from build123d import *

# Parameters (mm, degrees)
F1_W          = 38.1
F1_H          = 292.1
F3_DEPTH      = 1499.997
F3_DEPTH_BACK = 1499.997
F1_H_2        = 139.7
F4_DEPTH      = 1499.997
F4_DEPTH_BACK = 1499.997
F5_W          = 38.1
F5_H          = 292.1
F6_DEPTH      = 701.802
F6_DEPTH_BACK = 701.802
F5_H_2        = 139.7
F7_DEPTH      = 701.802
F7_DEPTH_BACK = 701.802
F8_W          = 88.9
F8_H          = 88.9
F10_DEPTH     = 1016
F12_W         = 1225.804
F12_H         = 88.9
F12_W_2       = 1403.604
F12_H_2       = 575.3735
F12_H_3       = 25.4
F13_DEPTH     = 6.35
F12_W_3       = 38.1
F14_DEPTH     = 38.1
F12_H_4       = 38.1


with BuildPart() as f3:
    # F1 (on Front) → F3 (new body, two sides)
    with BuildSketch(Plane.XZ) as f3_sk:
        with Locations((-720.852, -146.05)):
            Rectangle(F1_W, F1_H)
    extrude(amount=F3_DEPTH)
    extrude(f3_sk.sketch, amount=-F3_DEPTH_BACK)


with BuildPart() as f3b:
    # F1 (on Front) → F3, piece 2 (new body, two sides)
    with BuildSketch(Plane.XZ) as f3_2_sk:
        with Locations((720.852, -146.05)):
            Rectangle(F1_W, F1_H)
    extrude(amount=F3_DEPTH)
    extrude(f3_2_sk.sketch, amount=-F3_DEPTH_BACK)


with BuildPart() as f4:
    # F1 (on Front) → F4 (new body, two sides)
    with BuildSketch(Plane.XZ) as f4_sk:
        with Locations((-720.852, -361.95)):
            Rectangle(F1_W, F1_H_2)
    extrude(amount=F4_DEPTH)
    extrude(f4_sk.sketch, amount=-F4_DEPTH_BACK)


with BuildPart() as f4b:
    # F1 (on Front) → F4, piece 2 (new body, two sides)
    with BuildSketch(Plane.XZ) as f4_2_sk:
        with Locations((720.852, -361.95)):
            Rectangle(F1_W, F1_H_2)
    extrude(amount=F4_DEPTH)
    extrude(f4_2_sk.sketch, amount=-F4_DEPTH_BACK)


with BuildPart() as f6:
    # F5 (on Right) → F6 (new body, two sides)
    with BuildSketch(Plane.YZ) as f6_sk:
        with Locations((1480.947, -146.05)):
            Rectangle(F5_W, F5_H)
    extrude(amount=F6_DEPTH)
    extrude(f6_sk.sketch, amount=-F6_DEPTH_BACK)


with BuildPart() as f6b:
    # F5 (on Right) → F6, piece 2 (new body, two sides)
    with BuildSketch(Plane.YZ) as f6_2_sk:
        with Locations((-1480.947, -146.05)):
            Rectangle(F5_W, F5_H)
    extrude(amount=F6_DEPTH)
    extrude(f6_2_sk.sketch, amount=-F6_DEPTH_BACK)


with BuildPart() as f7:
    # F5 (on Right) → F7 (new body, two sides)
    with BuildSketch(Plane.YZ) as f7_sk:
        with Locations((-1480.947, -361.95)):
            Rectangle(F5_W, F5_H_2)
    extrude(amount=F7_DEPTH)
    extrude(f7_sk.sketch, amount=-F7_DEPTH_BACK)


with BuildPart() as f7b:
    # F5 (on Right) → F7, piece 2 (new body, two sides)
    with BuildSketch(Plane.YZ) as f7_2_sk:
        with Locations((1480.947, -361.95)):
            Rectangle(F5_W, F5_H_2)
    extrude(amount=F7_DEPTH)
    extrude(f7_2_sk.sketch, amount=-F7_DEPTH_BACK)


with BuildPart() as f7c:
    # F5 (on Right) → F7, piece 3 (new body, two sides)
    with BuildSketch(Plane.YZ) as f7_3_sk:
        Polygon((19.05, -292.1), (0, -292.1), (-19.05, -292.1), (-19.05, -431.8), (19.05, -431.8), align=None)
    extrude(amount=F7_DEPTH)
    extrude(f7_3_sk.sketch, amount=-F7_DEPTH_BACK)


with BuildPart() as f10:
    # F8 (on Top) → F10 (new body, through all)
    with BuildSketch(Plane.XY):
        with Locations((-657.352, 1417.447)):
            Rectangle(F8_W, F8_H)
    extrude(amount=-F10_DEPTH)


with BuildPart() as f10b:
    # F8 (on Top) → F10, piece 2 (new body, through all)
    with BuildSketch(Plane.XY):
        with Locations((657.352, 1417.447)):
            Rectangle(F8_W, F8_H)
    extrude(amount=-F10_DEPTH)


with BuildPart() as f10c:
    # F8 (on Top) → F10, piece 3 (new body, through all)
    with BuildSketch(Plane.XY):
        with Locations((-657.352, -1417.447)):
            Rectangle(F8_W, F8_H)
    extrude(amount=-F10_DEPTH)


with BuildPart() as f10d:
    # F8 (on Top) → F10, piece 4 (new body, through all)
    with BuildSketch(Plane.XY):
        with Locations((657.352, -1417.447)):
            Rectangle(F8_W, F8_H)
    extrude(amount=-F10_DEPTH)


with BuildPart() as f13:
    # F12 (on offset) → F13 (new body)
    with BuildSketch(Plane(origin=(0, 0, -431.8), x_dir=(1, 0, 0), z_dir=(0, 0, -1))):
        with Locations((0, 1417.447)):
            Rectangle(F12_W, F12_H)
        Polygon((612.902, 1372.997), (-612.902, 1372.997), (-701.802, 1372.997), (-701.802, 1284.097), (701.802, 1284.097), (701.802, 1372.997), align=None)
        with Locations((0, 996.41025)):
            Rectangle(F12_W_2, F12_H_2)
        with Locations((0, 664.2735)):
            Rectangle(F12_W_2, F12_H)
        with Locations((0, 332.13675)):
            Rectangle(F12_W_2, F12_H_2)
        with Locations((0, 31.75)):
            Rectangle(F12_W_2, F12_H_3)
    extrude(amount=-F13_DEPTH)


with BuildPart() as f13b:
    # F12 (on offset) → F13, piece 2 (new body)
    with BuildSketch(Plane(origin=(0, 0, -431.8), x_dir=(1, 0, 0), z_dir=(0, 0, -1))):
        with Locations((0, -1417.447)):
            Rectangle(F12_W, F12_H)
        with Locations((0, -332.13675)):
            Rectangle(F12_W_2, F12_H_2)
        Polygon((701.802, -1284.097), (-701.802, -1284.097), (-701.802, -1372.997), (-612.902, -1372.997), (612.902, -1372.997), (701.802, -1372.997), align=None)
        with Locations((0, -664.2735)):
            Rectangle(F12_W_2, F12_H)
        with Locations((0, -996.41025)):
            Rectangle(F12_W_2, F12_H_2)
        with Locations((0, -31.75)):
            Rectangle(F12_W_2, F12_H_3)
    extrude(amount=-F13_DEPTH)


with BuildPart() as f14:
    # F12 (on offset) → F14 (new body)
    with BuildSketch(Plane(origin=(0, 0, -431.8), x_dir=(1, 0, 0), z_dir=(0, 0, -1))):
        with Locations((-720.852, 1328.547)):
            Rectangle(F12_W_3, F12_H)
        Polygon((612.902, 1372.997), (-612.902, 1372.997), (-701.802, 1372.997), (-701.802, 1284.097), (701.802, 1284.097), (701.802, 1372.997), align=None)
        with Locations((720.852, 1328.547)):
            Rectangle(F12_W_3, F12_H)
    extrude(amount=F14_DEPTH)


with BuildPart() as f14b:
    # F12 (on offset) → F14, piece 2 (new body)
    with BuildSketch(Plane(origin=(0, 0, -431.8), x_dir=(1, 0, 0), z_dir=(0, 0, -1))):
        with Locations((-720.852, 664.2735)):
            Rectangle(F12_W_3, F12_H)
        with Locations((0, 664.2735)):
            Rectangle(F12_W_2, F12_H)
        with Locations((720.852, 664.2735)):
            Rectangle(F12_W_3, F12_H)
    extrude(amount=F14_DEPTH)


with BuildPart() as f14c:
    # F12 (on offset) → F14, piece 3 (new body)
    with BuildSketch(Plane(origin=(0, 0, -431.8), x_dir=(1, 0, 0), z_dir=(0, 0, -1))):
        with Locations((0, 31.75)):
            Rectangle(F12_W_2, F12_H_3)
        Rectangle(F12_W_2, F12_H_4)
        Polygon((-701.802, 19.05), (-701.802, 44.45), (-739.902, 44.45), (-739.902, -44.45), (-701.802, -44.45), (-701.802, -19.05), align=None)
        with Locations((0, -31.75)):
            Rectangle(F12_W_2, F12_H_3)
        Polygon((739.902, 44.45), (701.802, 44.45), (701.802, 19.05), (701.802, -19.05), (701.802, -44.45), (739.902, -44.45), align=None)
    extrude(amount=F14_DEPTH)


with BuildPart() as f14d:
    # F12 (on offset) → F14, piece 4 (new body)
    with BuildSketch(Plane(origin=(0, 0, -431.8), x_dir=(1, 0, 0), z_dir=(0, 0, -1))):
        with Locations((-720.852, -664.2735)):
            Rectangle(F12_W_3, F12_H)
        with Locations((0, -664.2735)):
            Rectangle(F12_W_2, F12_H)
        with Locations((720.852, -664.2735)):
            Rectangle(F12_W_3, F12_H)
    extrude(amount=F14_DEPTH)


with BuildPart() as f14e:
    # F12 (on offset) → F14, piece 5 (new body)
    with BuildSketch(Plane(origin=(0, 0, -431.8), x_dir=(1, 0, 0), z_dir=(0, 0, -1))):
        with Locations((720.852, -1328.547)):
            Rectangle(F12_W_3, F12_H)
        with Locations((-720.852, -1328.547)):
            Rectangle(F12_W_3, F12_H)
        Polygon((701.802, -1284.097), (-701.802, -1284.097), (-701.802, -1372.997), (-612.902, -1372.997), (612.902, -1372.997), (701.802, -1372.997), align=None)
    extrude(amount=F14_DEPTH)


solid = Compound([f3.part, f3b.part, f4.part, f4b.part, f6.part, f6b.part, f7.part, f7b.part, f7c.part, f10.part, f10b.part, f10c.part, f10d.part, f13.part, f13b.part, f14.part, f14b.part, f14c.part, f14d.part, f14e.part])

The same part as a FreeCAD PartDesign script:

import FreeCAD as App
import Part
import Sketcher

V = App.Vector
Q = App.Units.Quantity

doc = App.newDocument("Part")
body = doc.addObject("PartDesign::Body", "Body")

sketch1 = body.newObject("Sketcher::SketchObject", "Sketch")
sketch1.AttachmentSupport = (doc.getObject("XZ_Plane"), [""])
sketch1.MapMode = "FlatFace"
sketch1.addGeometry([
    Part.LineSegment(V(-740, 0, 0), V(-740, -292, 0)),
    Part.LineSegment(V(-740, -292, 0), V(-702, -292, 0)),
    Part.LineSegment(V(-702, -292, 0), V(-702, 0, 0)),
    Part.LineSegment(V(-702, 0, 0), V(-740, 0, 0)),
], False)
sketch1.addConstraint([
    Sketcher.Constraint("Coincident", 0, 2, 1, 1),
    Sketcher.Constraint("Coincident", 1, 2, 2, 1),
    Sketcher.Constraint("Coincident", 2, 2, 3, 1),
    Sketcher.Constraint("Coincident", 3, 2, 0, 1),
    Sketcher.Constraint("Vertical", 0),
    Sketcher.Constraint("Horizontal", 1),
    Sketcher.Constraint("Vertical", 2),
    Sketcher.Constraint("Horizontal", 3),
    Sketcher.Constraint("PointOnObject", 2, 2, -1),
    Sketcher.Constraint("DistanceX", 1, 1, 1, 2, Q("1.5 in")),
    Sketcher.Constraint("DistanceY", 0, 2, 0, 1, Q("11.5 in")),
    Sketcher.Constraint("DistanceX", 0, 2, -1, 1, Q("29.13 in")),
])
pad1 = body.newObject("PartDesign::Pad", "Pad")
pad1.Profile = sketch1
pad1.Type = "TwoLengths"
pad1.Length = Q("59.055 in")
pad1.Length2 = Q("59.055 in")
body2 = doc.addObject("PartDesign::Body", "Body001")

sketch2 = body2.newObject("Sketcher::SketchObject", "Sketch001")
sketch2.AttachmentSupport = (doc.getObject("XZ_Plane001"), [""])
sketch2.MapMode = "FlatFace"
sketch2.addGeometry([
    Part.LineSegment(V(702, 0, 0), V(702, -292, 0)),
    Part.LineSegment(V(702, -292, 0), V(740, -292, 0)),
    Part.LineSegment(V(740, -292, 0), V(740, 0, 0)),
    Part.LineSegment(V(740, 0, 0), V(702, 0, 0)),
], False)
sketch2.addConstraint([
    Sketcher.Constraint("Coincident", 0, 2, 1, 1),
    Sketcher.Constraint("Coincident", 1, 2, 2, 1),
    Sketcher.Constraint("Coincident", 2, 2, 3, 1),
    Sketcher.Constraint("Coincident", 3, 2, 0, 1),
    Sketcher.Constraint("Vertical", 0),
    Sketcher.Constraint("Horizontal", 1),
    Sketcher.Constraint("Vertical", 2),
    Sketcher.Constraint("Horizontal", 3),
    Sketcher.Constraint("PointOnObject", 2, 2, -1),
    Sketcher.Constraint("DistanceX", 1, 1, 1, 2, Q("1.5 in")),
    Sketcher.Constraint("DistanceY", 0, 2, 0, 1, Q("11.5 in")),
    Sketcher.Constraint("DistanceX", -1, 1, 0, 2, Q("27.63 in")),
])
pad2 = body2.newObject("PartDesign::Pad", "Pad001")
pad2.Profile = sketch2
pad2.Type = "TwoLengths"
pad2.Length = Q("59.055 in")
pad2.Length2 = Q("59.055 in")
body3 = doc.addObject("PartDesign::Body", "Body002")

sketch3 = body3.newObject("Sketcher::SketchObject", "Sketch002")
sketch3.AttachmentSupport = (doc.getObject("XZ_Plane002"), [""])
sketch3.MapMode = "FlatFace"
sketch3.addGeometry([
    Part.LineSegment(V(-740, -292, 0), V(-740, -432, 0)),
    Part.LineSegment(V(-740, -432, 0), V(-702, -432, 0)),
    Part.LineSegment(V(-702, -432, 0), V(-702, -292, 0)),
    Part.LineSegment(V(-702, -292, 0), V(-740, -292, 0)),
], False)
sketch3.addConstraint([
    Sketcher.Constraint("Coincident", 0, 2, 1, 1),
    Sketcher.Constraint("Coincident", 1, 2, 2, 1),
    Sketcher.Constraint("Coincident", 2, 2, 3, 1),
    Sketcher.Constraint("Coincident", 3, 2, 0, 1),
    Sketcher.Constraint("Vertical", 0),
    Sketcher.Constraint("Horizontal", 1),
    Sketcher.Constraint("Vertical", 2),
    Sketcher.Constraint("Horizontal", 3),
    Sketcher.Constraint("DistanceX", 1, 1, 1, 2, Q("1.5 in")),
    Sketcher.Constraint("DistanceY", 0, 2, 0, 1, Q("5.5 in")),
    Sketcher.Constraint("DistanceY", 0, 2, -1, 1, Q("17 in")),
    Sketcher.Constraint("DistanceX", 0, 2, -1, 1, Q("29.13 in")),
])
pad3 = body3.newObject("PartDesign::Pad", "Pad002")
pad3.Profile = sketch3
pad3.Type = "TwoLengths"
pad3.Length = Q("59.055 in")
pad3.Length2 = Q("59.055 in")
body4 = doc.addObject("PartDesign::Body", "Body003")

sketch4 = body4.newObject("Sketcher::SketchObject", "Sketch003")
sketch4.AttachmentSupport = (doc.getObject("XZ_Plane003"), [""])
sketch4.MapMode = "FlatFace"
sketch4.addGeometry([
    Part.LineSegment(V(702, -292, 0), V(702, -432, 0)),
    Part.LineSegment(V(702, -432, 0), V(740, -432, 0)),
    Part.LineSegment(V(740, -432, 0), V(740, -292, 0)),
    Part.LineSegment(V(740, -292, 0), V(702, -292, 0)),
], False)
sketch4.addConstraint([
    Sketcher.Constraint("Coincident", 0, 2, 1, 1),
    Sketcher.Constraint("Coincident", 1, 2, 2, 1),
    Sketcher.Constraint("Coincident", 2, 2, 3, 1),
    Sketcher.Constraint("Coincident", 3, 2, 0, 1),
    Sketcher.Constraint("Vertical", 0),
    Sketcher.Constraint("Horizontal", 1),
    Sketcher.Constraint("Vertical", 2),
    Sketcher.Constraint("Horizontal", 3),
    Sketcher.Constraint("DistanceX", 1, 1, 1, 2, Q("1.5 in")),
    Sketcher.Constraint("DistanceY", 0, 2, 0, 1, Q("5.5 in")),
    Sketcher.Constraint("DistanceY", 0, 2, -1, 1, Q("17 in")),
    Sketcher.Constraint("DistanceX", -1, 1, 0, 2, Q("27.63 in")),
])
pad4 = body4.newObject("PartDesign::Pad", "Pad003")
pad4.Profile = sketch4
pad4.Type = "TwoLengths"
pad4.Length = Q("59.055 in")
pad4.Length2 = Q("59.055 in")
body5 = doc.addObject("PartDesign::Body", "Body004")

sketch5 = body5.newObject("Sketcher::SketchObject", "Sketch004")
sketch5.AttachmentSupport = (doc.getObject("YZ_Plane004"), [""])
sketch5.MapMode = "FlatFace"
sketch5.addGeometry([
    Part.LineSegment(V(1462, 0, 0), V(1462, -292, 0)),
    Part.LineSegment(V(1462, -292, 0), V(1500, -292, 0)),
    Part.LineSegment(V(1500, -292, 0), V(1500, 0, 0)),
    Part.LineSegment(V(1500, 0, 0), V(1462, 0, 0)),
], False)
sketch5.addConstraint([
    Sketcher.Constraint("Coincident", 0, 2, 1, 1),
    Sketcher.Constraint("Coincident", 1, 2, 2, 1),
    Sketcher.Constraint("Coincident", 2, 2, 3, 1),
    Sketcher.Constraint("Coincident", 3, 2, 0, 1),
    Sketcher.Constraint("Vertical", 0),
    Sketcher.Constraint("Horizontal", 1),
    Sketcher.Constraint("Vertical", 2),
    Sketcher.Constraint("Horizontal", 3),
    Sketcher.Constraint("PointOnObject", 2, 2, -1),
    Sketcher.Constraint("DistanceX", 1, 1, 1, 2, Q("1.5 in")),
    Sketcher.Constraint("DistanceY", 0, 2, 0, 1, Q("11.5 in")),
    Sketcher.Constraint("DistanceX", -1, 1, 0, 2, Q("57.555 in")),
])
pad5 = body5.newObject("PartDesign::Pad", "Pad004")
pad5.Profile = sketch5
pad5.Type = "TwoLengths"
pad5.Length = Q("27.63 in")
pad5.Length2 = Q("27.63 in")
body6 = doc.addObject("PartDesign::Body", "Body005")

sketch6 = body6.newObject("Sketcher::SketchObject", "Sketch005")
sketch6.AttachmentSupport = (doc.getObject("YZ_Plane005"), [""])
sketch6.MapMode = "FlatFace"
sketch6.addGeometry([
    Part.LineSegment(V(-1500, 0, 0), V(-1500, -292, 0)),
    Part.LineSegment(V(-1500, -292, 0), V(-1462, -292, 0)),
    Part.LineSegment(V(-1462, -292, 0), V(-1462, 0, 0)),
    Part.LineSegment(V(-1462, 0, 0), V(-1500, 0, 0)),
], False)
sketch6.addConstraint([
    Sketcher.Constraint("Coincident", 0, 2, 1, 1),
    Sketcher.Constraint("Coincident", 1, 2, 2, 1),
    Sketcher.Constraint("Coincident", 2, 2, 3, 1),
    Sketcher.Constraint("Coincident", 3, 2, 0, 1),
    Sketcher.Constraint("Vertical", 0),
    Sketcher.Constraint("Horizontal", 1),
    Sketcher.Constraint("Vertical", 2),
    Sketcher.Constraint("Horizontal", 3),
    Sketcher.Constraint("PointOnObject", 2, 2, -1),
    Sketcher.Constraint("DistanceX", 1, 1, 1, 2, Q("1.5 in")),
    Sketcher.Constraint("DistanceY", 0, 2, 0, 1, Q("11.5 in")),
    Sketcher.Constraint("DistanceX", 0, 2, -1, 1, Q("59.055 in")),
])
pad6 = body6.newObject("PartDesign::Pad", "Pad005")
pad6.Profile = sketch6
pad6.Type = "TwoLengths"
pad6.Length = Q("27.63 in")
pad6.Length2 = Q("27.63 in")
body7 = doc.addObject("PartDesign::Body", "Body006")

sketch7 = body7.newObject("Sketcher::SketchObject", "Sketch006")
sketch7.AttachmentSupport = (doc.getObject("YZ_Plane006"), [""])
sketch7.MapMode = "FlatFace"
sketch7.addGeometry([
    Part.LineSegment(V(-1500, -292, 0), V(-1500, -432, 0)),
    Part.LineSegment(V(-1500, -432, 0), V(-1462, -432, 0)),
    Part.LineSegment(V(-1462, -432, 0), V(-1462, -292, 0)),
    Part.LineSegment(V(-1462, -292, 0), V(-1500, -292, 0)),
], False)
sketch7.addConstraint([
    Sketcher.Constraint("Coincident", 0, 2, 1, 1),
    Sketcher.Constraint("Coincident", 1, 2, 2, 1),
    Sketcher.Constraint("Coincident", 2, 2, 3, 1),
    Sketcher.Constraint("Coincident", 3, 2, 0, 1),
    Sketcher.Constraint("Vertical", 0),
    Sketcher.Constraint("Horizontal", 1),
    Sketcher.Constraint("Vertical", 2),
    Sketcher.Constraint("Horizontal", 3),
    Sketcher.Constraint("DistanceX", 1, 1, 1, 2, Q("1.5 in")),
    Sketcher.Constraint("DistanceY", 0, 2, 0, 1, Q("5.5 in")),
    Sketcher.Constraint("DistanceY", 0, 2, -1, 1, Q("17 in")),
    Sketcher.Constraint("DistanceX", 0, 2, -1, 1, Q("59.055 in")),
])
pad7 = body7.newObject("PartDesign::Pad", "Pad006")
pad7.Profile = sketch7
pad7.Type = "TwoLengths"
pad7.Length = Q("27.63 in")
pad7.Length2 = Q("27.63 in")
body8 = doc.addObject("PartDesign::Body", "Body007")

sketch8 = body8.newObject("Sketcher::SketchObject", "Sketch007")
sketch8.AttachmentSupport = (doc.getObject("YZ_Plane007"), [""])
sketch8.MapMode = "FlatFace"
sketch8.addGeometry([
    Part.LineSegment(V(1462, -292, 0), V(1462, -432, 0)),
    Part.LineSegment(V(1462, -432, 0), V(1500, -432, 0)),
    Part.LineSegment(V(1500, -432, 0), V(1500, -292, 0)),
    Part.LineSegment(V(1500, -292, 0), V(1462, -292, 0)),
], False)
sketch8.addConstraint([
    Sketcher.Constraint("Coincident", 0, 2, 1, 1),
    Sketcher.Constraint("Coincident", 1, 2, 2, 1),
    Sketcher.Constraint("Coincident", 2, 2, 3, 1),
    Sketcher.Constraint("Coincident", 3, 2, 0, 1),
    Sketcher.Constraint("Vertical", 0),
    Sketcher.Constraint("Horizontal", 1),
    Sketcher.Constraint("Vertical", 2),
    Sketcher.Constraint("Horizontal", 3),
    Sketcher.Constraint("DistanceX", 1, 1, 1, 2, Q("1.5 in")),
    Sketcher.Constraint("DistanceY", 0, 2, 0, 1, Q("5.5 in")),
    Sketcher.Constraint("DistanceY", 0, 2, -1, 1, Q("17 in")),
    Sketcher.Constraint("DistanceX", -1, 1, 0, 2, Q("57.555 in")),
])
pad8 = body8.newObject("PartDesign::Pad", "Pad007")
pad8.Profile = sketch8
pad8.Type = "TwoLengths"
pad8.Length = Q("27.63 in")
pad8.Length2 = Q("27.63 in")
body9 = doc.addObject("PartDesign::Body", "Body008")

sketch9 = body9.newObject("Sketcher::SketchObject", "Sketch008")
sketch9.AttachmentSupport = (doc.getObject("YZ_Plane008"), [""])
sketch9.MapMode = "FlatFace"
sketch9.addGeometry([
    Part.LineSegment(V(19, -292, 0), V(-19, -292, 0)),
    Part.LineSegment(V(-19, -292, 0), V(-19, -432, 0)),
    Part.LineSegment(V(-19, -432, 0), V(19, -432, 0)),
    Part.LineSegment(V(19, -432, 0), V(19, -292, 0)),
], False)
sketch9.addConstraint([
    Sketcher.Constraint("Coincident", 0, 2, 1, 1),
    Sketcher.Constraint("Coincident", 1, 2, 2, 1),
    Sketcher.Constraint("Coincident", 2, 2, 3, 1),
    Sketcher.Constraint("Coincident", 3, 2, 0, 1),
    Sketcher.Constraint("Horizontal", 0),
    Sketcher.Constraint("Vertical", 1),
    Sketcher.Constraint("Horizontal", 2),
    Sketcher.Constraint("Vertical", 3),
    Sketcher.Constraint("DistanceX", 0, 2, 0, 1, Q("1.5 in")),
    Sketcher.Constraint("DistanceY", 1, 2, 1, 1, Q("5.5 in")),
    Sketcher.Constraint("DistanceY", 1, 2, -1, 1, Q("17 in")),
    Sketcher.Constraint("DistanceX", 0, 2, -1, 1, Q("0.75 in")),
])
pad9 = body9.newObject("PartDesign::Pad", "Pad008")
pad9.Profile = sketch9
pad9.Type = "TwoLengths"
pad9.Length = Q("27.63 in")
pad9.Length2 = Q("27.63 in")
body10 = doc.addObject("PartDesign::Body", "Body009")

sketch10 = body10.newObject("Sketcher::SketchObject", "Sketch009")
sketch10.AttachmentSupport = (doc.getObject("XY_Plane009"), [""])
sketch10.MapMode = "FlatFace"
sketch10.addGeometry([
    Part.LineSegment(V(-702, 1462, 0), V(-702, 1373, 0)),
    Part.LineSegment(V(-702, 1373, 0), V(-613, 1373, 0)),
    Part.LineSegment(V(-613, 1373, 0), V(-613, 1462, 0)),
    Part.LineSegment(V(-613, 1462, 0), V(-702, 1462, 0)),
], False)
sketch10.addConstraint([
    Sketcher.Constraint("Coincident", 0, 2, 1, 1),
    Sketcher.Constraint("Coincident", 1, 2, 2, 1),
    Sketcher.Constraint("Coincident", 2, 2, 3, 1),
    Sketcher.Constraint("Coincident", 3, 2, 0, 1),
    Sketcher.Constraint("Vertical", 0),
    Sketcher.Constraint("Horizontal", 1),
    Sketcher.Constraint("Vertical", 2),
    Sketcher.Constraint("Horizontal", 3),
    Sketcher.Constraint("Equal", 3, 0),
    Sketcher.Constraint("DistanceX", 1, 1, 1, 2, Q("3.5 in")),
    Sketcher.Constraint("DistanceX", 0, 2, -1, 1, Q("27.63 in")),
    Sketcher.Constraint("DistanceY", -1, 1, 0, 2, Q("54.055 in")),
])
pad10 = body10.newObject("PartDesign::Pad", "Pad009")
pad10.Profile = sketch10
pad10.Length = Q("40 in")
pad10.Reversed = True
body11 = doc.addObject("PartDesign::Body", "Body010")

sketch11 = body11.newObject("Sketcher::SketchObject", "Sketch010")
sketch11.AttachmentSupport = (doc.getObject("XY_Plane010"), [""])
sketch11.MapMode = "FlatFace"
sketch11.addGeometry([
    Part.LineSegment(V(613, 1462, 0), V(613, 1373, 0)),
    Part.LineSegment(V(613, 1373, 0), V(702, 1373, 0)),
    Part.LineSegment(V(702, 1373, 0), V(702, 1462, 0)),
    Part.LineSegment(V(702, 1462, 0), V(613, 1462, 0)),
], False)
sketch11.addConstraint([
    Sketcher.Constraint("Coincident", 0, 2, 1, 1),
    Sketcher.Constraint("Coincident", 1, 2, 2, 1),
    Sketcher.Constraint("Coincident", 2, 2, 3, 1),
    Sketcher.Constraint("Coincident", 3, 2, 0, 1),
    Sketcher.Constraint("Vertical", 0),
    Sketcher.Constraint("Horizontal", 1),
    Sketcher.Constraint("Vertical", 2),
    Sketcher.Constraint("Horizontal", 3),
    Sketcher.Constraint("Equal", 3, 0),
    Sketcher.Constraint("DistanceX", 1, 1, 1, 2, Q("3.5 in")),
    Sketcher.Constraint("DistanceX", -1, 1, 0, 2, Q("24.13 in")),
    Sketcher.Constraint("DistanceY", -1, 1, 0, 2, Q("54.055 in")),
])
pad11 = body11.newObject("PartDesign::Pad", "Pad010")
pad11.Profile = sketch11
pad11.Length = Q("40 in")
pad11.Reversed = True
body12 = doc.addObject("PartDesign::Body", "Body011")

sketch12 = body12.newObject("Sketcher::SketchObject", "Sketch011")
sketch12.AttachmentSupport = (doc.getObject("XY_Plane011"), [""])
sketch12.MapMode = "FlatFace"
sketch12.addGeometry([
    Part.LineSegment(V(-702, -1373, 0), V(-702, -1462, 0)),
    Part.LineSegment(V(-702, -1462, 0), V(-613, -1462, 0)),
    Part.LineSegment(V(-613, -1462, 0), V(-613, -1373, 0)),
    Part.LineSegment(V(-613, -1373, 0), V(-702, -1373, 0)),
], False)
sketch12.addConstraint([
    Sketcher.Constraint("Coincident", 0, 2, 1, 1),
    Sketcher.Constraint("Coincident", 1, 2, 2, 1),
    Sketcher.Constraint("Coincident", 2, 2, 3, 1),
    Sketcher.Constraint("Coincident", 3, 2, 0, 1),
    Sketcher.Constraint("Vertical", 0),
    Sketcher.Constraint("Horizontal", 1),
    Sketcher.Constraint("Vertical", 2),
    Sketcher.Constraint("Horizontal", 3),
    Sketcher.Constraint("Equal", 3, 0),
    Sketcher.Constraint("DistanceX", 1, 1, 1, 2, Q("3.5 in")),
    Sketcher.Constraint("DistanceX", 0, 2, -1, 1, Q("27.63 in")),
    Sketcher.Constraint("DistanceY", 0, 2, -1, 1, Q("57.555 in")),
])
pad12 = body12.newObject("PartDesign::Pad", "Pad011")
pad12.Profile = sketch12
pad12.Length = Q("40 in")
pad12.Reversed = True
body13 = doc.addObject("PartDesign::Body", "Body012")

sketch13 = body13.newObject("Sketcher::SketchObject", "Sketch012")
sketch13.AttachmentSupport = (doc.getObject("XY_Plane012"), [""])
sketch13.MapMode = "FlatFace"
sketch13.addGeometry([
    Part.LineSegment(V(613, -1373, 0), V(613, -1462, 0)),
    Part.LineSegment(V(613, -1462, 0), V(702, -1462, 0)),
    Part.LineSegment(V(702, -1462, 0), V(702, -1373, 0)),
    Part.LineSegment(V(702, -1373, 0), V(613, -1373, 0)),
], False)
sketch13.addConstraint([
    Sketcher.Constraint("Coincident", 0, 2, 1, 1),
    Sketcher.Constraint("Coincident", 1, 2, 2, 1),
    Sketcher.Constraint("Coincident", 2, 2, 3, 1),
    Sketcher.Constraint("Coincident", 3, 2, 0, 1),
    Sketcher.Constraint("Vertical", 0),
    Sketcher.Constraint("Horizontal", 1),
    Sketcher.Constraint("Vertical", 2),
    Sketcher.Constraint("Horizontal", 3),
    Sketcher.Constraint("Equal", 3, 0),
    Sketcher.Constraint("DistanceX", 1, 1, 1, 2, Q("3.5 in")),
    Sketcher.Constraint("DistanceX", -1, 1, 0, 2, Q("24.13 in")),
    Sketcher.Constraint("DistanceY", 0, 2, -1, 1, Q("57.555 in")),
])
pad13 = body13.newObject("PartDesign::Pad", "Pad012")
pad13.Profile = sketch13
pad13.Length = Q("40 in")
pad13.Reversed = True
body14 = doc.addObject("PartDesign::Body", "Body013")

sketch14 = body14.newObject("Sketcher::SketchObject", "Sketch013")
sketch14.AttachmentSupport = (doc.getObject("XY_Plane013"), [""])
sketch14.MapMode = "FlatFace"
sketch14.AttachmentOffset = App.Placement(V(0, 0, -17 * 25.4), App.Rotation())
sketch14.addGeometry([
    Part.LineSegment(V(-613, -1462, 0), V(-613, -1373, 0)),
    Part.LineSegment(V(-613, -1373, 0), V(-702, -1373, 0)),
    Part.LineSegment(V(-702, -1373, 0), V(-702, -19, 0)),
    Part.LineSegment(V(-702, -19, 0), V(702, -19, 0)),
    Part.LineSegment(V(702, -19, 0), V(702, -1373, 0)),
    Part.LineSegment(V(702, -1373, 0), V(613, -1373, 0)),
    Part.LineSegment(V(613, -1373, 0), V(613, -1462, 0)),
    Part.LineSegment(V(613, -1462, 0), V(-613, -1462, 0)),
], False)
sketch14.addConstraint([
    Sketcher.Constraint("Coincident", 0, 2, 1, 1),
    Sketcher.Constraint("Coincident", 1, 2, 2, 1),
    Sketcher.Constraint("Coincident", 2, 2, 3, 1),
    Sketcher.Constraint("Coincident", 3, 2, 4, 1),
    Sketcher.Constraint("Coincident", 4, 2, 5, 1),
    Sketcher.Constraint("Coincident", 5, 2, 6, 1),
    Sketcher.Constraint("Coincident", 6, 2, 7, 1),
    Sketcher.Constraint("Coincident", 7, 2, 0, 1),
    Sketcher.Constraint("Vertical", 0),
    Sketcher.Constraint("Horizontal", 1),
    Sketcher.Constraint("Vertical", 2),
    Sketcher.Constraint("Horizontal", 3),
    Sketcher.Constraint("Vertical", 4),
    Sketcher.Constraint("Horizontal", 5),
    Sketcher.Constraint("Vertical", 6),
    Sketcher.Constraint("Horizontal", 7),
    Sketcher.Constraint("Symmetric", 1, 2, 4, 2, -2),
    Sketcher.Constraint("Equal", 1, 5),
    Sketcher.Constraint("Equal", 5, 0),
    Sketcher.Constraint("DistanceX", 1, 2, 1, 1, Q("3.5 in")),
    Sketcher.Constraint("DistanceX", 3, 1, 3, 2, Q("55.26 in")),
    Sketcher.Constraint("DistanceY", 2, 1, 2, 2, Q("53.305 in")),
    Sketcher.Constraint("DistanceY", 2, 2, -1, 1, Q("0.75 in")),
])
pad14 = body14.newObject("PartDesign::Pad", "Pad013")
pad14.Profile = sketch14
pad14.Length = Q("0.25 in")
body15 = doc.addObject("PartDesign::Body", "Body014")

sketch15 = body15.newObject("Sketcher::SketchObject", "Sketch014")
sketch15.AttachmentSupport = (doc.getObject("XY_Plane014"), [""])
sketch15.MapMode = "FlatFace"
sketch15.AttachmentOffset = App.Placement(V(0, 0, -17 * 25.4), App.Rotation())
sketch15.addGeometry([
    Part.LineSegment(V(-613, 1373, 0), V(-613, 1462, 0)),
    Part.LineSegment(V(-613, 1462, 0), V(613, 1462, 0)),
    Part.LineSegment(V(613, 1462, 0), V(613, 1373, 0)),
    Part.LineSegment(V(613, 1373, 0), V(702, 1373, 0)),
    Part.LineSegment(V(702, 1373, 0), V(702, 19, 0)),
    Part.LineSegment(V(702, 19, 0), V(-702, 19, 0)),
    Part.LineSegment(V(-702, 19, 0), V(-702, 1373, 0)),
    Part.LineSegment(V(-702, 1373, 0), V(-613, 1373, 0)),
], False)
sketch15.addConstraint([
    Sketcher.Constraint("Coincident", 0, 2, 1, 1),
    Sketcher.Constraint("Coincident", 1, 2, 2, 1),
    Sketcher.Constraint("Coincident", 2, 2, 3, 1),
    Sketcher.Constraint("Coincident", 3, 2, 4, 1),
    Sketcher.Constraint("Coincident", 4, 2, 5, 1),
    Sketcher.Constraint("Coincident", 5, 2, 6, 1),
    Sketcher.Constraint("Coincident", 6, 2, 7, 1),
    Sketcher.Constraint("Coincident", 7, 2, 0, 1),
    Sketcher.Constraint("Vertical", 0),
    Sketcher.Constraint("Horizontal", 1),
    Sketcher.Constraint("Vertical", 2),
    Sketcher.Constraint("Horizontal", 3),
    Sketcher.Constraint("Vertical", 4),
    Sketcher.Constraint("Horizontal", 5),
    Sketcher.Constraint("Vertical", 6),
    Sketcher.Constraint("Horizontal", 7),
    Sketcher.Constraint("Symmetric", 3, 2, 6, 2, -2),
    Sketcher.Constraint("Equal", 3, 7),
    Sketcher.Constraint("Equal", 7, 0),
    Sketcher.Constraint("DistanceX", 3, 1, 3, 2, Q("3.5 in")),
    Sketcher.Constraint("DistanceX", 1, 1, 1, 2, Q("48.26 in")),
    Sketcher.Constraint("DistanceY", 4, 2, 4, 1, Q("53.305 in")),
    Sketcher.Constraint("DistanceY", -1, 1, 4, 2, Q("0.75 in")),
])
pad15 = body15.newObject("PartDesign::Pad", "Pad014")
pad15.Profile = sketch15
pad15.Length = Q("0.25 in")
body16 = doc.addObject("PartDesign::Body", "Body015")

sketch16 = body16.newObject("Sketcher::SketchObject", "Sketch015")
sketch16.AttachmentSupport = (doc.getObject("XY_Plane015"), [""])
sketch16.MapMode = "FlatFace"
sketch16.AttachmentOffset = App.Placement(V(0, 0, -17 * 25.4), App.Rotation())
sketch16.addGeometry([
    Part.LineSegment(V(-740, -1373, 0), V(-740, -1284, 0)),
    Part.LineSegment(V(-740, -1284, 0), V(740, -1284, 0)),
    Part.LineSegment(V(740, -1284, 0), V(740, -1373, 0)),
    Part.LineSegment(V(740, -1373, 0), V(-740, -1373, 0)),
], False)
sketch16.addConstraint([
    Sketcher.Constraint("Coincident", 0, 2, 1, 1),
    Sketcher.Constraint("Coincident", 1, 2, 2, 1),
    Sketcher.Constraint("Coincident", 2, 2, 3, 1),
    Sketcher.Constraint("Coincident", 3, 2, 0, 1),
    Sketcher.Constraint("Vertical", 0),
    Sketcher.Constraint("Horizontal", 1),
    Sketcher.Constraint("Vertical", 2),
    Sketcher.Constraint("Horizontal", 3),
    Sketcher.Constraint("DistanceY", 0, 1, 0, 2, Q("3.5 in")),
    Sketcher.Constraint("DistanceX", 1, 1, 1, 2, Q("58.26 in")),
    Sketcher.Constraint("DistanceX", 0, 2, -1, 1, Q("29.13 in")),
    Sketcher.Constraint("DistanceY", 0, 2, -1, 1, Q("50.555 in")),
])
pad16 = body16.newObject("PartDesign::Pad", "Pad015")
pad16.Profile = sketch16
pad16.Length = Q("1.5 in")
pad16.Reversed = True
body17 = doc.addObject("PartDesign::Body", "Body016")

sketch17 = body17.newObject("Sketcher::SketchObject", "Sketch016")
sketch17.AttachmentSupport = (doc.getObject("XY_Plane016"), [""])
sketch17.MapMode = "FlatFace"
sketch17.AttachmentOffset = App.Placement(V(0, 0, -17 * 25.4), App.Rotation())
sketch17.addGeometry([
    Part.LineSegment(V(-740, -709, 0), V(-740, -620, 0)),
    Part.LineSegment(V(-740, -620, 0), V(740, -620, 0)),
    Part.LineSegment(V(740, -620, 0), V(740, -709, 0)),
    Part.LineSegment(V(740, -709, 0), V(-740, -709, 0)),
], False)
sketch17.addConstraint([
    Sketcher.Constraint("Coincident", 0, 2, 1, 1),
    Sketcher.Constraint("Coincident", 1, 2, 2, 1),
    Sketcher.Constraint("Coincident", 2, 2, 3, 1),
    Sketcher.Constraint("Coincident", 3, 2, 0, 1),
    Sketcher.Constraint("Vertical", 0),
    Sketcher.Constraint("Horizontal", 1),
    Sketcher.Constraint("Vertical", 2),
    Sketcher.Constraint("Horizontal", 3),
    Sketcher.Constraint("DistanceY", 0, 1, 0, 2, Q("3.5 in")),
    Sketcher.Constraint("DistanceX", 1, 1, 1, 2, Q("58.26 in")),
    Sketcher.Constraint("DistanceX", 0, 2, -1, 1, Q("29.13 in")),
    Sketcher.Constraint("DistanceY", 0, 2, -1, 1, Q("24.4025 in")),
])
pad17 = body17.newObject("PartDesign::Pad", "Pad016")
pad17.Profile = sketch17
pad17.Length = Q("1.5 in")
pad17.Reversed = True
body18 = doc.addObject("PartDesign::Body", "Body017")

sketch18 = body18.newObject("Sketcher::SketchObject", "Sketch017")
sketch18.AttachmentSupport = (doc.getObject("XY_Plane017"), [""])
sketch18.MapMode = "FlatFace"
sketch18.AttachmentOffset = App.Placement(V(0, 0, -17 * 25.4), App.Rotation())
sketch18.addGeometry([
    Part.LineSegment(V(-740, -44, 0), V(-740, 44, 0)),
    Part.LineSegment(V(-740, 44, 0), V(740, 44, 0)),
    Part.LineSegment(V(740, 44, 0), V(740, -44, 0)),
    Part.LineSegment(V(740, -44, 0), V(-740, -44, 0)),
], False)
sketch18.addConstraint([
    Sketcher.Constraint("Coincident", 0, 2, 1, 1),
    Sketcher.Constraint("Coincident", 1, 2, 2, 1),
    Sketcher.Constraint("Coincident", 2, 2, 3, 1),
    Sketcher.Constraint("Coincident", 3, 2, 0, 1),
    Sketcher.Constraint("Vertical", 0),
    Sketcher.Constraint("Horizontal", 1),
    Sketcher.Constraint("Vertical", 2),
    Sketcher.Constraint("Horizontal", 3),
    Sketcher.Constraint("Symmetric", 0, 2, 2, 2, -1, 1),
    Sketcher.Constraint("DistanceY", 0, 1, 0, 2, Q("3.5 in")),
    Sketcher.Constraint("DistanceX", 1, 1, 1, 2, Q("58.26 in")),
])
pad18 = body18.newObject("PartDesign::Pad", "Pad017")
pad18.Profile = sketch18
pad18.Length = Q("1.5 in")
pad18.Reversed = True
body19 = doc.addObject("PartDesign::Body", "Body018")

sketch19 = body19.newObject("Sketcher::SketchObject", "Sketch018")
sketch19.AttachmentSupport = (doc.getObject("XY_Plane018"), [""])
sketch19.MapMode = "FlatFace"
sketch19.AttachmentOffset = App.Placement(V(0, 0, -17 * 25.4), App.Rotation())
sketch19.addGeometry([
    Part.LineSegment(V(-740, 620, 0), V(-740, 709, 0)),
    Part.LineSegment(V(-740, 709, 0), V(740, 709, 0)),
    Part.LineSegment(V(740, 709, 0), V(740, 620, 0)),
    Part.LineSegment(V(740, 620, 0), V(-740, 620, 0)),
], False)
sketch19.addConstraint([
    Sketcher.Constraint("Coincident", 0, 2, 1, 1),
    Sketcher.Constraint("Coincident", 1, 2, 2, 1),
    Sketcher.Constraint("Coincident", 2, 2, 3, 1),
    Sketcher.Constraint("Coincident", 3, 2, 0, 1),
    Sketcher.Constraint("Vertical", 0),
    Sketcher.Constraint("Horizontal", 1),
    Sketcher.Constraint("Vertical", 2),
    Sketcher.Constraint("Horizontal", 3),
    Sketcher.Constraint("DistanceY", 0, 1, 0, 2, Q("3.5 in")),
    Sketcher.Constraint("DistanceX", 1, 1, 1, 2, Q("58.26 in")),
    Sketcher.Constraint("DistanceX", 0, 2, -1, 1, Q("29.13 in")),
    Sketcher.Constraint("DistanceY", -1, 1, 0, 2, Q("27.9025 in")),
])
pad19 = body19.newObject("PartDesign::Pad", "Pad018")
pad19.Profile = sketch19
pad19.Length = Q("1.5 in")
pad19.Reversed = True
body20 = doc.addObject("PartDesign::Body", "Body019")

sketch20 = body20.newObject("Sketcher::SketchObject", "Sketch019")
sketch20.AttachmentSupport = (doc.getObject("XY_Plane019"), [""])
sketch20.MapMode = "FlatFace"
sketch20.AttachmentOffset = App.Placement(V(0, 0, -17 * 25.4), App.Rotation())
sketch20.addGeometry([
    Part.LineSegment(V(740, 1373, 0), V(740, 1284, 0)),
    Part.LineSegment(V(740, 1284, 0), V(-740, 1284, 0)),
    Part.LineSegment(V(-740, 1284, 0), V(-740, 1373, 0)),
    Part.LineSegment(V(-740, 1373, 0), V(740, 1373, 0)),
], False)
sketch20.addConstraint([
    Sketcher.Constraint("Coincident", 0, 2, 1, 1),
    Sketcher.Constraint("Coincident", 1, 2, 2, 1),
    Sketcher.Constraint("Coincident", 2, 2, 3, 1),
    Sketcher.Constraint("Coincident", 3, 2, 0, 1),
    Sketcher.Constraint("Vertical", 0),
    Sketcher.Constraint("Horizontal", 1),
    Sketcher.Constraint("Vertical", 2),
    Sketcher.Constraint("Horizontal", 3),
    Sketcher.Constraint("DistanceY", 0, 2, 0, 1, Q("3.5 in")),
    Sketcher.Constraint("DistanceX", 1, 2, 1, 1, Q("58.26 in")),
    Sketcher.Constraint("DistanceX", -1, 1, 0, 2, Q("29.13 in")),
    Sketcher.Constraint("DistanceY", -1, 1, 0, 2, Q("50.555 in")),
])
pad20 = body20.newObject("PartDesign::Pad", "Pad019")
pad20.Profile = sketch20
pad20.Length = Q("1.5 in")
pad20.Reversed = True

doc.recompute()
